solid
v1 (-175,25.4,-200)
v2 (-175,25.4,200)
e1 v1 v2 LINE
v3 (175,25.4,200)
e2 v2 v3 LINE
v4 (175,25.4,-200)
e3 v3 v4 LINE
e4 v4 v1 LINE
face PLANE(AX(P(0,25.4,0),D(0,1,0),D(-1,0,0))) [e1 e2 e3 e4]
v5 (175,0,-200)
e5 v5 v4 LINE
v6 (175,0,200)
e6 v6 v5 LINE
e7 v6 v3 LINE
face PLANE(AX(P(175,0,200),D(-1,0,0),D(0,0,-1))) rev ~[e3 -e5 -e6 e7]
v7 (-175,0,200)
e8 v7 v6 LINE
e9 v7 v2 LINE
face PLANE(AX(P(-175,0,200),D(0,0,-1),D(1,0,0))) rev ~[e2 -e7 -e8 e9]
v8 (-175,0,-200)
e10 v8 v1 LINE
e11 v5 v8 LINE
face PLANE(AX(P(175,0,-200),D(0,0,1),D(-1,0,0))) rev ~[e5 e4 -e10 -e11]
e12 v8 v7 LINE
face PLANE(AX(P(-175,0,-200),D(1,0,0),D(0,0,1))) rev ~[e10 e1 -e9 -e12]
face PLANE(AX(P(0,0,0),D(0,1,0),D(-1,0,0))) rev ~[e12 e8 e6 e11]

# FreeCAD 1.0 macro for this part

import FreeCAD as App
import Part
import Sketcher

V = App.Vector


def add_polygon(sketch, points):
    """Adds a closed chain of lines whose ends are joined by coincident constraints."""
    first, n = sketch.GeometryCount, len(points)
    for a, b in zip(points, points[1:] + points[:1]):
        sketch.addGeometry(Part.LineSegment(App.Vector(*a, 0), App.Vector(*b, 0)), False)
    for i in range(n):
        sketch.addConstraint(Sketcher.Constraint("Coincident", first + i, 2, first + (i + 1) % n, 1))

doc = App.newDocument("Part")
body = doc.addObject("PartDesign::Body", "Body")

sketch1 = body.newObject("Sketcher::SketchObject", "Sketch")
sketch1.AttachmentSupport = (doc.getObject("XZ_Plane"), [""])
sketch1.MapMode = "FlatFace"
add_polygon(sketch1, [(-175, -200), (-175, 200), (175, 200), (175, -200)])
sketch1.addConstraint([
    Sketcher.Constraint("Vertical", 0),
    Sketcher.Constraint("Horizontal", 1),
    Sketcher.Constraint("Vertical", 2),
    Sketcher.Constraint("Horizontal", 3),
    Sketcher.Constraint("Symmetric", 0, 2, 2, 2, -1, 1),
    Sketcher.Constraint("DistanceX", 1, 1, 1, 2, 350.0),
    Sketcher.Constraint("DistanceY", 0, 1, 0, 2, 400.0),
])
pad1 = body.newObject("PartDesign::Pad", "Pad")
pad1.Profile = sketch1
pad1.Length = 25.4
pad1.Reversed = True

doc.recompute()
